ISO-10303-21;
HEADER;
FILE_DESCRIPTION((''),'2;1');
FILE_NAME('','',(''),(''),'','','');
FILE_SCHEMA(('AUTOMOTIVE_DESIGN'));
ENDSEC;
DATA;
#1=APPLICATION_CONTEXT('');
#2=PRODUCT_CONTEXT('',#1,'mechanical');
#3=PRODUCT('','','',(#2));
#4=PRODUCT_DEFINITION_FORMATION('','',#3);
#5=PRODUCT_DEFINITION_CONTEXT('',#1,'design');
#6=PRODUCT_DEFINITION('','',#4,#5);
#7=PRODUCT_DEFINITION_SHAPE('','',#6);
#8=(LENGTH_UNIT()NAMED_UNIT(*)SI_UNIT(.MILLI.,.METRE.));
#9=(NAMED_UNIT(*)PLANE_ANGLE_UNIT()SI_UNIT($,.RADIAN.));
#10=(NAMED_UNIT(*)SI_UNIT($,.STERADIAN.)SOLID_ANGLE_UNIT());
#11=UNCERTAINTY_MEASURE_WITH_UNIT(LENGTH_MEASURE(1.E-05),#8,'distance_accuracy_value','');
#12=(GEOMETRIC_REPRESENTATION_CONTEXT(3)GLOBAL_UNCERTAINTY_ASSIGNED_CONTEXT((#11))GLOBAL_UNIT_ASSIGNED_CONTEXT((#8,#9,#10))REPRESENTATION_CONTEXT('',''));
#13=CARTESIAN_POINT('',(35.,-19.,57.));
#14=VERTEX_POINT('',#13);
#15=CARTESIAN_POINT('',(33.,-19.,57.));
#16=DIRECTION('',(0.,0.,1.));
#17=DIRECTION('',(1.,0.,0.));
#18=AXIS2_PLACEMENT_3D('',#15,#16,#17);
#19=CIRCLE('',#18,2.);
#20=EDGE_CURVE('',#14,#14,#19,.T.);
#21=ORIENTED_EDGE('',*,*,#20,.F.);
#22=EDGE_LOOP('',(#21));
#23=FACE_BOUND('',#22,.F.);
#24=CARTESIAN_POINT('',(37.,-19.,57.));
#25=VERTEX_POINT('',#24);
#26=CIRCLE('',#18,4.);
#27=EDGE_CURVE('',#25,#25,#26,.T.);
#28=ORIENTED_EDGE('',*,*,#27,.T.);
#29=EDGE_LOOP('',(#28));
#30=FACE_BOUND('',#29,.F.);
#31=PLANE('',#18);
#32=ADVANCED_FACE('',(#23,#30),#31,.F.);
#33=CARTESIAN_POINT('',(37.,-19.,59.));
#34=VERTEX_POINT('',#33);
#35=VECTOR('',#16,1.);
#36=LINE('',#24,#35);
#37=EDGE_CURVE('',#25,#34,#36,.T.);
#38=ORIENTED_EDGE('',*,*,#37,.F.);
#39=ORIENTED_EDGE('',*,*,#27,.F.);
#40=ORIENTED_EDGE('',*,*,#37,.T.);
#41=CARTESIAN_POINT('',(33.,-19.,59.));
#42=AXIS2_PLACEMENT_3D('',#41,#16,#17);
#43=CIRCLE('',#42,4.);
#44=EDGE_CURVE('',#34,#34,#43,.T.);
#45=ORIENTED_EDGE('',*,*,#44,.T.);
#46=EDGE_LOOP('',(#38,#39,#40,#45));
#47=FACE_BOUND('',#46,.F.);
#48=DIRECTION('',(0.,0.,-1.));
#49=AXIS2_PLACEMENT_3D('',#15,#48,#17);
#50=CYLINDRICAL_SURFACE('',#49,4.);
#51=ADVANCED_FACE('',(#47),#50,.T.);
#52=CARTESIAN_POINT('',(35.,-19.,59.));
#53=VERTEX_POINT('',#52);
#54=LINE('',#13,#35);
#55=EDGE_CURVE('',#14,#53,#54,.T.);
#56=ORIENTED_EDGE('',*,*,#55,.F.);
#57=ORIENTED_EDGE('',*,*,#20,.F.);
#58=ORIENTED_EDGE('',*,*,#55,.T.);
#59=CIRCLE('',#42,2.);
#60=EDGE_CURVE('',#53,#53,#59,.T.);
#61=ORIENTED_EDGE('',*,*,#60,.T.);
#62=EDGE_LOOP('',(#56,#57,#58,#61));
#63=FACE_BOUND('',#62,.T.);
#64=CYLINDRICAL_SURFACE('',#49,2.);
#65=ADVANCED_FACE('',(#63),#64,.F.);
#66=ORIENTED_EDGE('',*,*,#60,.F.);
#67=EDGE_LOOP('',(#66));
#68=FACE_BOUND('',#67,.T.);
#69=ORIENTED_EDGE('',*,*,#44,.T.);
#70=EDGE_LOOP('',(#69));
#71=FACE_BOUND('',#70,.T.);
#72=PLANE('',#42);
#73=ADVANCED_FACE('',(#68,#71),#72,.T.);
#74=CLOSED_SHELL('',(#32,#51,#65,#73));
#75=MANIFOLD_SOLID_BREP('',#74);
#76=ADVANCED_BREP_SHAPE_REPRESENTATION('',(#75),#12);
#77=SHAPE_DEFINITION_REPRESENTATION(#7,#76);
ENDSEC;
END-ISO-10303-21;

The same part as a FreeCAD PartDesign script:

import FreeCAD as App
import Part
import Sketcher
from FreeCAD import Vector

doc = App.newDocument("Part")
body = doc.addObject("PartDesign::Body", "Body")

sketch1 = doc.addObject("Sketcher::SketchObject", "Sketch")
body.addObject(sketch1)
sketch1.AttachmentSupport = (doc.XY_Plane, [""])
sketch1.MapMode = "FlatFace"
sketch1.addGeometry(Part.Circle(Vector(0, 0, 0), Vector(0, 0, 1), 2), False)
sketch1.addConstraint(Sketcher.Constraint("Coincident", 0, 3, -1, 1))
sketch1.addConstraint(Sketcher.Constraint("Diameter", 0, 4.0))
pad1 = doc.addObject("PartDesign::Pad", "Pad")
body.addObject(pad1)
pad1.Profile = sketch1
pad1.Length = 2
body2 = doc.addObject("PartDesign::Body", "Body001")

sketch2 = doc.addObject("Sketcher::SketchObject", "Sketch001")
body2.addObject(sketch2)
sketch2.AttachmentSupport = (doc.getObject("XY_Plane001"), [""])
sketch2.MapMode = "FlatFace"
sketch2.addGeometry(Part.Circle(Vector(0, 0, 0), Vector(0, 0, 1), 4), False)
sketch2.addConstraint(Sketcher.Constraint("Coincident", 0, 3, -1, 1))
sketch2.addConstraint(Sketcher.Constraint("Diameter", 0, 8.0))
pad2 = doc.addObject("PartDesign::Pad", "Pad001")
body2.addObject(pad2)
pad2.Profile = sketch2
pad2.Length = 2
doc.recompute()

boolean = doc.addObject("PartDesign::Boolean", "Boolean")
body2.addObject(boolean)
boolean.Type = "Cut"
boolean.addObjects([body])
body3 = doc.addObject("PartDesign::Body", "Body002")
doc.recompute()

body2.Placement = App.Placement(Vector(33, -19, 57), App.Rotation(Vector(0, 0, 1), 0))
boolean2 = doc.addObject("PartDesign::Boolean", "Boolean001")
body3.addObject(boolean2)
boolean2.Type = "Fuse"
boolean2.addObjects([body2])

doc.recompute()
